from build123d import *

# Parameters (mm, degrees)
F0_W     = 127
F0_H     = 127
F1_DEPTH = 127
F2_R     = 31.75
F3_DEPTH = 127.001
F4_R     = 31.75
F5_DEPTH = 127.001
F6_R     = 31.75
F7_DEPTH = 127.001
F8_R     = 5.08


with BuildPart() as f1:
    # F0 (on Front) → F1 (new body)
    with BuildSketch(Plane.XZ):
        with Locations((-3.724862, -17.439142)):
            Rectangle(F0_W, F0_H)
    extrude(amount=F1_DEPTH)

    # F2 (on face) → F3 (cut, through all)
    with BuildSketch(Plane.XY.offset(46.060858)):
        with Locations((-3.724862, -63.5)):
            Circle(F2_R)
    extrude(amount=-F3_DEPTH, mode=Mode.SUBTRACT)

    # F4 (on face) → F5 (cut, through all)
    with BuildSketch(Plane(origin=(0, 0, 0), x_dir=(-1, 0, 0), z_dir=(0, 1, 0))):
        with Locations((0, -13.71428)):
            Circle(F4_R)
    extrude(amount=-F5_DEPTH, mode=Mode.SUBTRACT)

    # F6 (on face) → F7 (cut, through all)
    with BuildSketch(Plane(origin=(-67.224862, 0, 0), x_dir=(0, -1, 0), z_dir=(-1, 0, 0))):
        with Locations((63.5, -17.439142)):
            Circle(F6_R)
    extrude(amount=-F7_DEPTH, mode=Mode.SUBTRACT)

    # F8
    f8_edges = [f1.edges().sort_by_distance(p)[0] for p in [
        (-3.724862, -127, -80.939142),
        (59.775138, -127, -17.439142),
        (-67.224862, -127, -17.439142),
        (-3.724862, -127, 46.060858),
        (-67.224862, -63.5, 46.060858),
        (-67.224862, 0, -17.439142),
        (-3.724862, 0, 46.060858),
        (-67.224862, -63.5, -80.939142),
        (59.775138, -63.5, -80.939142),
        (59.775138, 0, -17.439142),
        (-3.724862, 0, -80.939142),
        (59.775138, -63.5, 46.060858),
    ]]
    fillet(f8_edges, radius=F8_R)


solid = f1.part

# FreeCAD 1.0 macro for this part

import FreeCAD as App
import Part
import Sketcher
from FreeCAD import Vector
Q = App.Units.Quantity


def edges_at(feature, points):
    """Names of the edges that pass closest to the given points."""
    edges = feature.Shape.Edges
    near = lambda p: min(range(len(edges)), key=lambda i: edges[i].distToShape(Part.Vertex(*p))[0])
    return sorted({f"Edge{near(p) + 1}" for p in points})


def add_polygon(sketch, points):
    """Adds a closed chain of lines whose ends are joined by coincident constraints."""
    first, n = sketch.GeometryCount, len(points)
    for a, b in zip(points, points[1:] + points[:1]):
        sketch.addGeometry(Part.LineSegment(App.Vector(*a, 0), App.Vector(*b, 0)), False)
    for i in range(n):
        sketch.addConstraint(Sketcher.Constraint("Coincident", first + i, 2, first + (i + 1) % n, 1))

doc = App.newDocument("Part")
body = doc.addObject("PartDesign::Body", "Body")

sketch1 = body.newObject("Sketcher::SketchObject", "Sketch")
sketch1.AttachmentSupport = (doc.getObject("XZ_Plane"), [""])
sketch1.MapMode = "FlatFace"
add_polygon(sketch1, [(-67, 46), (-67, -81), (60, -81), (60, 46)])
sketch1.addConstraint([
    Sketcher.Constraint("Vertical", 0),
    Sketcher.Constraint("Horizontal", 1),
    Sketcher.Constraint("Vertical", 2),
    Sketcher.Constraint("Horizontal", 3),
    Sketcher.Constraint("Equal", 3, 0),
    Sketcher.Constraint("DistanceX", 1, 1, 1, 2, Q("5 in")),
    Sketcher.Constraint("DistanceX", 0, 2, -1, 1, Q("67.224862 mm")),
    Sketcher.Constraint("DistanceY", -1, 1, 2, 2, Q("46.060858 mm")),
])
pad1 = body.newObject("PartDesign::Pad", "Pad")
pad1.Profile = sketch1
pad1.Length = Q("5 in")

sketch2 = body.newObject("Sketcher::SketchObject", "Sketch001")
sketch2.AttachmentSupport = (doc.getObject("XY_Plane"), [""])
sketch2.MapMode = "FlatFace"
sketch2.AttachmentOffset = App.Placement(Vector(0, 0, 46.060858), App.Rotation())
sketch2.addGeometry(Part.Circle(Vector(-4, -64, 0), Vector(0, 0, 1), 32), False)
sketch2.addConstraint([
    Sketcher.Constraint("Diameter", 0, Q("2.5 in")),
    Sketcher.Constraint("DistanceY", 0, 3, -1, 1, Q("2.5 in")),
    Sketcher.Constraint("DistanceX", 0, 3, -1, 1, Q("3.724862 mm")),
])
pocket1 = body.newObject("PartDesign::Pocket", "Pocket")
pocket1.Profile = sketch2
pocket1.Type = "ThroughAll"

sketch3 = body.newObject("Sketcher::SketchObject", "Sketch002")
sketch3.AttachmentSupport = (doc.getObject("XZ_Plane"), [""])
sketch3.MapMode = "FlatFace"
sketch3.addGeometry(Part.Circle(Vector(0, -14, 0), Vector(0, 0, 1), 32), False)
sketch3.addConstraint([
    Sketcher.Constraint("PointOnObject", 0, 3, -2),
    Sketcher.Constraint("Diameter", 0, Q("2.5 in")),
    Sketcher.Constraint("DistanceY", 0, 3, -1, 1, Q("13.71428 mm")),
])
pocket2 = body.newObject("PartDesign::Pocket", "Pocket001")
pocket2.Profile = sketch3
pocket2.Type = "ThroughAll"
pocket2.Reversed = True

sketch4 = body.newObject("Sketcher::SketchObject", "Sketch003")
sketch4.AttachmentSupport = (doc.getObject("YZ_Plane"), [""])
sketch4.MapMode = "FlatFace"
sketch4.AttachmentOffset = App.Placement(Vector(0, 0, -67.224862), App.Rotation())
sketch4.addGeometry(Part.Circle(Vector(-64, -17, 0), Vector(0, 0, 1), 32), False)
sketch4.addConstraint([
    Sketcher.Constraint("Diameter", 0, Q("2.5 in")),
    Sketcher.Constraint("DistanceX", 0, 3, -1, 1, Q("2.5 in")),
    Sketcher.Constraint("DistanceY", 0, 3, -1, 1, Q("17.439142 mm")),
])
pocket3 = body.newObject("PartDesign::Pocket", "Pocket002")
pocket3.Profile = sketch4
pocket3.Type = "ThroughAll"
pocket3.Reversed = True
doc.recompute()

fillet = body.newObject("PartDesign::Fillet", "Fillet")
fillet.Base = (pocket3, edges_at(pocket3, [
    (-3.725, -127, -80.939),
    (59.775, -127, -17.439),
    (-67.225, -127, -17.439),
    (-3.725, -127, 46.061),
    (-67.225, -63.5, 46.061),
    (-67.225, 0, -17.439),
    (-3.725, 0, 46.061),
    (-67.225, -63.5, -80.939),
    (59.775, -63.5, -80.939),
    (59.775, 0, -17.439),
    (-3.725, 0, -80.939),
    (59.775, -63.5, 46.061),
]))
fillet.Radius = Q("0.2 in")

doc.recompute()
